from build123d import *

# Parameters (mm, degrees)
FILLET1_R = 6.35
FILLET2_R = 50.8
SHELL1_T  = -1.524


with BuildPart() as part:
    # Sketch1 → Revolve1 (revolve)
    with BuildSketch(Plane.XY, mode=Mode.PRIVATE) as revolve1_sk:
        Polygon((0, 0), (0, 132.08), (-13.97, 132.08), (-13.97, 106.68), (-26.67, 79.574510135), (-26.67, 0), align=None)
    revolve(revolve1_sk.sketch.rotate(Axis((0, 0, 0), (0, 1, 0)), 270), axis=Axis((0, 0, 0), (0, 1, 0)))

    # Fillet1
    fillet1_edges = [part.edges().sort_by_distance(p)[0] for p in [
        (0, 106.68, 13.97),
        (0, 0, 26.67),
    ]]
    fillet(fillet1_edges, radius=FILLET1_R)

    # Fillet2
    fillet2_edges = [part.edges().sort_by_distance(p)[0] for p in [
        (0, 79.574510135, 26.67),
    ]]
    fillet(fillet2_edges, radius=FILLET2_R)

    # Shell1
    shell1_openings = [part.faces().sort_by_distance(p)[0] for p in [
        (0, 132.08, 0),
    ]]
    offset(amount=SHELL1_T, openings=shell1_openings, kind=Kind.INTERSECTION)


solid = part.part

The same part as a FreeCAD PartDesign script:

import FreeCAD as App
import Part
import Sketcher

V = App.Vector
Q = App.Units.Quantity


def edges_at(feature, points):
    """Names of the edges that pass closest to the given points."""
    edges = feature.Shape.Edges
    near = lambda p: min(range(len(edges)), key=lambda i: edges[i].distToShape(Part.Vertex(*p))[0])
    return sorted({f"Edge{near(p) + 1}" for p in points})


def faces_at(feature, points):
    """Names of the faces that lie closest to the given points."""
    faces = feature.Shape.Faces
    near = lambda p: min(range(len(faces)), key=lambda i: faces[i].distToShape(Part.Vertex(*p))[0])
    return sorted({f"Face{near(p) + 1}" for p in points})


def add_polygon(sketch, points):
    """Adds a closed chain of lines whose ends are joined by coincident constraints."""
    first, n = sketch.GeometryCount, len(points)
    for a, b in zip(points, points[1:] + points[:1]):
        sketch.addGeometry(Part.LineSegment(App.Vector(*a, 0), App.Vector(*b, 0)), False)
    for i in range(n):
        sketch.addConstraint(Sketcher.Constraint("Coincident", first + i, 2, first + (i + 1) % n, 1))

doc = App.newDocument("Part")
body = doc.addObject("PartDesign::Body", "Body")

# Sketch on XY plane
sketch1 = body.newObject("Sketcher::SketchObject", "Sketch")
sketch1.AttachmentSupport = (doc.getObject("XY_Plane"), [""])
sketch1.MapMode = "FlatFace"
add_polygon(sketch1, [(0, 0), (0, 132), (-14, 132), (-14, 107), (-27, 80), (-27, 0)])  # lines 0-5
sketch1.addConstraint([
    Sketcher.Constraint("Vertical", 0),
    Sketcher.Constraint("Horizontal", 1),
    Sketcher.Constraint("Vertical", 2),
    Sketcher.Constraint("Vertical", 4),
    Sketcher.Constraint("Horizontal", 5),
    Sketcher.Constraint("Coincident", 5, 2, -1, 1),
    Sketcher.Constraint("DistanceY", 2, 2, 2, 1, Q("1 in")),
    Sketcher.Constraint("DistanceY", 0, 1, 0, 2, Q("5.2 in")),
    Sketcher.Constraint("DistanceX", 1, 2, 1, 1, Q("0.55 in")),
    Sketcher.Constraint("DistanceX", 5, 1, 5, 2, Q("1.05 in")),
    Sketcher.Constraint("DistanceY", 4, 2, 4, 1, Q("79.57451 mm")),
])
revolution = body.newObject("PartDesign::Revolution", "Revolution")
revolution.Profile = sketch1
revolution.ReferenceAxis = (sketch1, ["V_Axis"])
revolution.Angle = 360
doc.recompute()

fillet = body.newObject("PartDesign::Fillet", "Fillet")
fillet.Base = (revolution, edges_at(revolution, [(0, 106.68, 13.97), (0, 0, 26.67)]))
fillet.Radius = Q("0.25 in")
doc.recompute()

fillet2 = body.newObject("PartDesign::Fillet", "Fillet001")
fillet2.Base = (fillet, edges_at(fillet, [(0, 79.575, 26.67)]))
fillet2.Radius = Q("2 in")
doc.recompute()

thickness = body.newObject("PartDesign::Thickness", "Thickness")
thickness.Base = (fillet2, faces_at(fillet2, [(0, 132.08, 0)]))
thickness.Value = Q("0.06 in")
thickness.Reversed = True
thickness.Join = "Intersection"

doc.recompute()
